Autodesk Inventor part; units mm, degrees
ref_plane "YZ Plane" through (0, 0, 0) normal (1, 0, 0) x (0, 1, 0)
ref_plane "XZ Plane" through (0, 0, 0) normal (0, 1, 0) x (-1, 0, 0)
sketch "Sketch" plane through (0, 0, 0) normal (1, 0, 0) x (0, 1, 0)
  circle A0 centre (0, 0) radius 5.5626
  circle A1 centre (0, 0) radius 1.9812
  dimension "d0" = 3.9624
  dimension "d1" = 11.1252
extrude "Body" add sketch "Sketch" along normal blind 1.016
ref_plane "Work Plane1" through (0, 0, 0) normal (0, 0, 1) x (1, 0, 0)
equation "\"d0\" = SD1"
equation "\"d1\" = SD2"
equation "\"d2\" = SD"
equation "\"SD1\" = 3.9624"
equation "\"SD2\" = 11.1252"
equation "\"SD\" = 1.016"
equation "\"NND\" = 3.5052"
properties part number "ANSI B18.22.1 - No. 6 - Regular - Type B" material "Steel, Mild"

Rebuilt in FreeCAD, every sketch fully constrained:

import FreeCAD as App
import Part
import Sketcher
from FreeCAD import Vector
Q = App.Units.Quantity

doc = App.newDocument("Part")
body = doc.addObject("PartDesign::Body", "Body")

# Sketch on YZ plane
sketch1 = doc.addObject("Sketcher::SketchObject", "Sketch")
body.addObject(sketch1)
sketch1.AttachmentSupport = (doc.YZ_Plane, [""])
sketch1.MapMode = "FlatFace"
sketch1.addGeometry([
    Part.Circle(Vector(0, 0, 0), Vector(0, 0, 1), 5.5626),
    Part.Circle(Vector(0, 0, 0), Vector(0, 0, 1), 1.9812),
], False)
sketch1.addConstraint([
    Sketcher.Constraint("Coincident", 0, 3, -1, 1),
    Sketcher.Constraint("Coincident", 1, 3, -1, 1),
    Sketcher.Constraint("Diameter", 0, Q("0.438 in")),
    Sketcher.Constraint("Diameter", 1, Q("0.156 in")),
])
pad1 = doc.addObject("PartDesign::Pad", "Pad")
body.addObject(pad1)
pad1.Profile = sketch1
pad1.Length = Q("0.04 in")

doc.recompute()
